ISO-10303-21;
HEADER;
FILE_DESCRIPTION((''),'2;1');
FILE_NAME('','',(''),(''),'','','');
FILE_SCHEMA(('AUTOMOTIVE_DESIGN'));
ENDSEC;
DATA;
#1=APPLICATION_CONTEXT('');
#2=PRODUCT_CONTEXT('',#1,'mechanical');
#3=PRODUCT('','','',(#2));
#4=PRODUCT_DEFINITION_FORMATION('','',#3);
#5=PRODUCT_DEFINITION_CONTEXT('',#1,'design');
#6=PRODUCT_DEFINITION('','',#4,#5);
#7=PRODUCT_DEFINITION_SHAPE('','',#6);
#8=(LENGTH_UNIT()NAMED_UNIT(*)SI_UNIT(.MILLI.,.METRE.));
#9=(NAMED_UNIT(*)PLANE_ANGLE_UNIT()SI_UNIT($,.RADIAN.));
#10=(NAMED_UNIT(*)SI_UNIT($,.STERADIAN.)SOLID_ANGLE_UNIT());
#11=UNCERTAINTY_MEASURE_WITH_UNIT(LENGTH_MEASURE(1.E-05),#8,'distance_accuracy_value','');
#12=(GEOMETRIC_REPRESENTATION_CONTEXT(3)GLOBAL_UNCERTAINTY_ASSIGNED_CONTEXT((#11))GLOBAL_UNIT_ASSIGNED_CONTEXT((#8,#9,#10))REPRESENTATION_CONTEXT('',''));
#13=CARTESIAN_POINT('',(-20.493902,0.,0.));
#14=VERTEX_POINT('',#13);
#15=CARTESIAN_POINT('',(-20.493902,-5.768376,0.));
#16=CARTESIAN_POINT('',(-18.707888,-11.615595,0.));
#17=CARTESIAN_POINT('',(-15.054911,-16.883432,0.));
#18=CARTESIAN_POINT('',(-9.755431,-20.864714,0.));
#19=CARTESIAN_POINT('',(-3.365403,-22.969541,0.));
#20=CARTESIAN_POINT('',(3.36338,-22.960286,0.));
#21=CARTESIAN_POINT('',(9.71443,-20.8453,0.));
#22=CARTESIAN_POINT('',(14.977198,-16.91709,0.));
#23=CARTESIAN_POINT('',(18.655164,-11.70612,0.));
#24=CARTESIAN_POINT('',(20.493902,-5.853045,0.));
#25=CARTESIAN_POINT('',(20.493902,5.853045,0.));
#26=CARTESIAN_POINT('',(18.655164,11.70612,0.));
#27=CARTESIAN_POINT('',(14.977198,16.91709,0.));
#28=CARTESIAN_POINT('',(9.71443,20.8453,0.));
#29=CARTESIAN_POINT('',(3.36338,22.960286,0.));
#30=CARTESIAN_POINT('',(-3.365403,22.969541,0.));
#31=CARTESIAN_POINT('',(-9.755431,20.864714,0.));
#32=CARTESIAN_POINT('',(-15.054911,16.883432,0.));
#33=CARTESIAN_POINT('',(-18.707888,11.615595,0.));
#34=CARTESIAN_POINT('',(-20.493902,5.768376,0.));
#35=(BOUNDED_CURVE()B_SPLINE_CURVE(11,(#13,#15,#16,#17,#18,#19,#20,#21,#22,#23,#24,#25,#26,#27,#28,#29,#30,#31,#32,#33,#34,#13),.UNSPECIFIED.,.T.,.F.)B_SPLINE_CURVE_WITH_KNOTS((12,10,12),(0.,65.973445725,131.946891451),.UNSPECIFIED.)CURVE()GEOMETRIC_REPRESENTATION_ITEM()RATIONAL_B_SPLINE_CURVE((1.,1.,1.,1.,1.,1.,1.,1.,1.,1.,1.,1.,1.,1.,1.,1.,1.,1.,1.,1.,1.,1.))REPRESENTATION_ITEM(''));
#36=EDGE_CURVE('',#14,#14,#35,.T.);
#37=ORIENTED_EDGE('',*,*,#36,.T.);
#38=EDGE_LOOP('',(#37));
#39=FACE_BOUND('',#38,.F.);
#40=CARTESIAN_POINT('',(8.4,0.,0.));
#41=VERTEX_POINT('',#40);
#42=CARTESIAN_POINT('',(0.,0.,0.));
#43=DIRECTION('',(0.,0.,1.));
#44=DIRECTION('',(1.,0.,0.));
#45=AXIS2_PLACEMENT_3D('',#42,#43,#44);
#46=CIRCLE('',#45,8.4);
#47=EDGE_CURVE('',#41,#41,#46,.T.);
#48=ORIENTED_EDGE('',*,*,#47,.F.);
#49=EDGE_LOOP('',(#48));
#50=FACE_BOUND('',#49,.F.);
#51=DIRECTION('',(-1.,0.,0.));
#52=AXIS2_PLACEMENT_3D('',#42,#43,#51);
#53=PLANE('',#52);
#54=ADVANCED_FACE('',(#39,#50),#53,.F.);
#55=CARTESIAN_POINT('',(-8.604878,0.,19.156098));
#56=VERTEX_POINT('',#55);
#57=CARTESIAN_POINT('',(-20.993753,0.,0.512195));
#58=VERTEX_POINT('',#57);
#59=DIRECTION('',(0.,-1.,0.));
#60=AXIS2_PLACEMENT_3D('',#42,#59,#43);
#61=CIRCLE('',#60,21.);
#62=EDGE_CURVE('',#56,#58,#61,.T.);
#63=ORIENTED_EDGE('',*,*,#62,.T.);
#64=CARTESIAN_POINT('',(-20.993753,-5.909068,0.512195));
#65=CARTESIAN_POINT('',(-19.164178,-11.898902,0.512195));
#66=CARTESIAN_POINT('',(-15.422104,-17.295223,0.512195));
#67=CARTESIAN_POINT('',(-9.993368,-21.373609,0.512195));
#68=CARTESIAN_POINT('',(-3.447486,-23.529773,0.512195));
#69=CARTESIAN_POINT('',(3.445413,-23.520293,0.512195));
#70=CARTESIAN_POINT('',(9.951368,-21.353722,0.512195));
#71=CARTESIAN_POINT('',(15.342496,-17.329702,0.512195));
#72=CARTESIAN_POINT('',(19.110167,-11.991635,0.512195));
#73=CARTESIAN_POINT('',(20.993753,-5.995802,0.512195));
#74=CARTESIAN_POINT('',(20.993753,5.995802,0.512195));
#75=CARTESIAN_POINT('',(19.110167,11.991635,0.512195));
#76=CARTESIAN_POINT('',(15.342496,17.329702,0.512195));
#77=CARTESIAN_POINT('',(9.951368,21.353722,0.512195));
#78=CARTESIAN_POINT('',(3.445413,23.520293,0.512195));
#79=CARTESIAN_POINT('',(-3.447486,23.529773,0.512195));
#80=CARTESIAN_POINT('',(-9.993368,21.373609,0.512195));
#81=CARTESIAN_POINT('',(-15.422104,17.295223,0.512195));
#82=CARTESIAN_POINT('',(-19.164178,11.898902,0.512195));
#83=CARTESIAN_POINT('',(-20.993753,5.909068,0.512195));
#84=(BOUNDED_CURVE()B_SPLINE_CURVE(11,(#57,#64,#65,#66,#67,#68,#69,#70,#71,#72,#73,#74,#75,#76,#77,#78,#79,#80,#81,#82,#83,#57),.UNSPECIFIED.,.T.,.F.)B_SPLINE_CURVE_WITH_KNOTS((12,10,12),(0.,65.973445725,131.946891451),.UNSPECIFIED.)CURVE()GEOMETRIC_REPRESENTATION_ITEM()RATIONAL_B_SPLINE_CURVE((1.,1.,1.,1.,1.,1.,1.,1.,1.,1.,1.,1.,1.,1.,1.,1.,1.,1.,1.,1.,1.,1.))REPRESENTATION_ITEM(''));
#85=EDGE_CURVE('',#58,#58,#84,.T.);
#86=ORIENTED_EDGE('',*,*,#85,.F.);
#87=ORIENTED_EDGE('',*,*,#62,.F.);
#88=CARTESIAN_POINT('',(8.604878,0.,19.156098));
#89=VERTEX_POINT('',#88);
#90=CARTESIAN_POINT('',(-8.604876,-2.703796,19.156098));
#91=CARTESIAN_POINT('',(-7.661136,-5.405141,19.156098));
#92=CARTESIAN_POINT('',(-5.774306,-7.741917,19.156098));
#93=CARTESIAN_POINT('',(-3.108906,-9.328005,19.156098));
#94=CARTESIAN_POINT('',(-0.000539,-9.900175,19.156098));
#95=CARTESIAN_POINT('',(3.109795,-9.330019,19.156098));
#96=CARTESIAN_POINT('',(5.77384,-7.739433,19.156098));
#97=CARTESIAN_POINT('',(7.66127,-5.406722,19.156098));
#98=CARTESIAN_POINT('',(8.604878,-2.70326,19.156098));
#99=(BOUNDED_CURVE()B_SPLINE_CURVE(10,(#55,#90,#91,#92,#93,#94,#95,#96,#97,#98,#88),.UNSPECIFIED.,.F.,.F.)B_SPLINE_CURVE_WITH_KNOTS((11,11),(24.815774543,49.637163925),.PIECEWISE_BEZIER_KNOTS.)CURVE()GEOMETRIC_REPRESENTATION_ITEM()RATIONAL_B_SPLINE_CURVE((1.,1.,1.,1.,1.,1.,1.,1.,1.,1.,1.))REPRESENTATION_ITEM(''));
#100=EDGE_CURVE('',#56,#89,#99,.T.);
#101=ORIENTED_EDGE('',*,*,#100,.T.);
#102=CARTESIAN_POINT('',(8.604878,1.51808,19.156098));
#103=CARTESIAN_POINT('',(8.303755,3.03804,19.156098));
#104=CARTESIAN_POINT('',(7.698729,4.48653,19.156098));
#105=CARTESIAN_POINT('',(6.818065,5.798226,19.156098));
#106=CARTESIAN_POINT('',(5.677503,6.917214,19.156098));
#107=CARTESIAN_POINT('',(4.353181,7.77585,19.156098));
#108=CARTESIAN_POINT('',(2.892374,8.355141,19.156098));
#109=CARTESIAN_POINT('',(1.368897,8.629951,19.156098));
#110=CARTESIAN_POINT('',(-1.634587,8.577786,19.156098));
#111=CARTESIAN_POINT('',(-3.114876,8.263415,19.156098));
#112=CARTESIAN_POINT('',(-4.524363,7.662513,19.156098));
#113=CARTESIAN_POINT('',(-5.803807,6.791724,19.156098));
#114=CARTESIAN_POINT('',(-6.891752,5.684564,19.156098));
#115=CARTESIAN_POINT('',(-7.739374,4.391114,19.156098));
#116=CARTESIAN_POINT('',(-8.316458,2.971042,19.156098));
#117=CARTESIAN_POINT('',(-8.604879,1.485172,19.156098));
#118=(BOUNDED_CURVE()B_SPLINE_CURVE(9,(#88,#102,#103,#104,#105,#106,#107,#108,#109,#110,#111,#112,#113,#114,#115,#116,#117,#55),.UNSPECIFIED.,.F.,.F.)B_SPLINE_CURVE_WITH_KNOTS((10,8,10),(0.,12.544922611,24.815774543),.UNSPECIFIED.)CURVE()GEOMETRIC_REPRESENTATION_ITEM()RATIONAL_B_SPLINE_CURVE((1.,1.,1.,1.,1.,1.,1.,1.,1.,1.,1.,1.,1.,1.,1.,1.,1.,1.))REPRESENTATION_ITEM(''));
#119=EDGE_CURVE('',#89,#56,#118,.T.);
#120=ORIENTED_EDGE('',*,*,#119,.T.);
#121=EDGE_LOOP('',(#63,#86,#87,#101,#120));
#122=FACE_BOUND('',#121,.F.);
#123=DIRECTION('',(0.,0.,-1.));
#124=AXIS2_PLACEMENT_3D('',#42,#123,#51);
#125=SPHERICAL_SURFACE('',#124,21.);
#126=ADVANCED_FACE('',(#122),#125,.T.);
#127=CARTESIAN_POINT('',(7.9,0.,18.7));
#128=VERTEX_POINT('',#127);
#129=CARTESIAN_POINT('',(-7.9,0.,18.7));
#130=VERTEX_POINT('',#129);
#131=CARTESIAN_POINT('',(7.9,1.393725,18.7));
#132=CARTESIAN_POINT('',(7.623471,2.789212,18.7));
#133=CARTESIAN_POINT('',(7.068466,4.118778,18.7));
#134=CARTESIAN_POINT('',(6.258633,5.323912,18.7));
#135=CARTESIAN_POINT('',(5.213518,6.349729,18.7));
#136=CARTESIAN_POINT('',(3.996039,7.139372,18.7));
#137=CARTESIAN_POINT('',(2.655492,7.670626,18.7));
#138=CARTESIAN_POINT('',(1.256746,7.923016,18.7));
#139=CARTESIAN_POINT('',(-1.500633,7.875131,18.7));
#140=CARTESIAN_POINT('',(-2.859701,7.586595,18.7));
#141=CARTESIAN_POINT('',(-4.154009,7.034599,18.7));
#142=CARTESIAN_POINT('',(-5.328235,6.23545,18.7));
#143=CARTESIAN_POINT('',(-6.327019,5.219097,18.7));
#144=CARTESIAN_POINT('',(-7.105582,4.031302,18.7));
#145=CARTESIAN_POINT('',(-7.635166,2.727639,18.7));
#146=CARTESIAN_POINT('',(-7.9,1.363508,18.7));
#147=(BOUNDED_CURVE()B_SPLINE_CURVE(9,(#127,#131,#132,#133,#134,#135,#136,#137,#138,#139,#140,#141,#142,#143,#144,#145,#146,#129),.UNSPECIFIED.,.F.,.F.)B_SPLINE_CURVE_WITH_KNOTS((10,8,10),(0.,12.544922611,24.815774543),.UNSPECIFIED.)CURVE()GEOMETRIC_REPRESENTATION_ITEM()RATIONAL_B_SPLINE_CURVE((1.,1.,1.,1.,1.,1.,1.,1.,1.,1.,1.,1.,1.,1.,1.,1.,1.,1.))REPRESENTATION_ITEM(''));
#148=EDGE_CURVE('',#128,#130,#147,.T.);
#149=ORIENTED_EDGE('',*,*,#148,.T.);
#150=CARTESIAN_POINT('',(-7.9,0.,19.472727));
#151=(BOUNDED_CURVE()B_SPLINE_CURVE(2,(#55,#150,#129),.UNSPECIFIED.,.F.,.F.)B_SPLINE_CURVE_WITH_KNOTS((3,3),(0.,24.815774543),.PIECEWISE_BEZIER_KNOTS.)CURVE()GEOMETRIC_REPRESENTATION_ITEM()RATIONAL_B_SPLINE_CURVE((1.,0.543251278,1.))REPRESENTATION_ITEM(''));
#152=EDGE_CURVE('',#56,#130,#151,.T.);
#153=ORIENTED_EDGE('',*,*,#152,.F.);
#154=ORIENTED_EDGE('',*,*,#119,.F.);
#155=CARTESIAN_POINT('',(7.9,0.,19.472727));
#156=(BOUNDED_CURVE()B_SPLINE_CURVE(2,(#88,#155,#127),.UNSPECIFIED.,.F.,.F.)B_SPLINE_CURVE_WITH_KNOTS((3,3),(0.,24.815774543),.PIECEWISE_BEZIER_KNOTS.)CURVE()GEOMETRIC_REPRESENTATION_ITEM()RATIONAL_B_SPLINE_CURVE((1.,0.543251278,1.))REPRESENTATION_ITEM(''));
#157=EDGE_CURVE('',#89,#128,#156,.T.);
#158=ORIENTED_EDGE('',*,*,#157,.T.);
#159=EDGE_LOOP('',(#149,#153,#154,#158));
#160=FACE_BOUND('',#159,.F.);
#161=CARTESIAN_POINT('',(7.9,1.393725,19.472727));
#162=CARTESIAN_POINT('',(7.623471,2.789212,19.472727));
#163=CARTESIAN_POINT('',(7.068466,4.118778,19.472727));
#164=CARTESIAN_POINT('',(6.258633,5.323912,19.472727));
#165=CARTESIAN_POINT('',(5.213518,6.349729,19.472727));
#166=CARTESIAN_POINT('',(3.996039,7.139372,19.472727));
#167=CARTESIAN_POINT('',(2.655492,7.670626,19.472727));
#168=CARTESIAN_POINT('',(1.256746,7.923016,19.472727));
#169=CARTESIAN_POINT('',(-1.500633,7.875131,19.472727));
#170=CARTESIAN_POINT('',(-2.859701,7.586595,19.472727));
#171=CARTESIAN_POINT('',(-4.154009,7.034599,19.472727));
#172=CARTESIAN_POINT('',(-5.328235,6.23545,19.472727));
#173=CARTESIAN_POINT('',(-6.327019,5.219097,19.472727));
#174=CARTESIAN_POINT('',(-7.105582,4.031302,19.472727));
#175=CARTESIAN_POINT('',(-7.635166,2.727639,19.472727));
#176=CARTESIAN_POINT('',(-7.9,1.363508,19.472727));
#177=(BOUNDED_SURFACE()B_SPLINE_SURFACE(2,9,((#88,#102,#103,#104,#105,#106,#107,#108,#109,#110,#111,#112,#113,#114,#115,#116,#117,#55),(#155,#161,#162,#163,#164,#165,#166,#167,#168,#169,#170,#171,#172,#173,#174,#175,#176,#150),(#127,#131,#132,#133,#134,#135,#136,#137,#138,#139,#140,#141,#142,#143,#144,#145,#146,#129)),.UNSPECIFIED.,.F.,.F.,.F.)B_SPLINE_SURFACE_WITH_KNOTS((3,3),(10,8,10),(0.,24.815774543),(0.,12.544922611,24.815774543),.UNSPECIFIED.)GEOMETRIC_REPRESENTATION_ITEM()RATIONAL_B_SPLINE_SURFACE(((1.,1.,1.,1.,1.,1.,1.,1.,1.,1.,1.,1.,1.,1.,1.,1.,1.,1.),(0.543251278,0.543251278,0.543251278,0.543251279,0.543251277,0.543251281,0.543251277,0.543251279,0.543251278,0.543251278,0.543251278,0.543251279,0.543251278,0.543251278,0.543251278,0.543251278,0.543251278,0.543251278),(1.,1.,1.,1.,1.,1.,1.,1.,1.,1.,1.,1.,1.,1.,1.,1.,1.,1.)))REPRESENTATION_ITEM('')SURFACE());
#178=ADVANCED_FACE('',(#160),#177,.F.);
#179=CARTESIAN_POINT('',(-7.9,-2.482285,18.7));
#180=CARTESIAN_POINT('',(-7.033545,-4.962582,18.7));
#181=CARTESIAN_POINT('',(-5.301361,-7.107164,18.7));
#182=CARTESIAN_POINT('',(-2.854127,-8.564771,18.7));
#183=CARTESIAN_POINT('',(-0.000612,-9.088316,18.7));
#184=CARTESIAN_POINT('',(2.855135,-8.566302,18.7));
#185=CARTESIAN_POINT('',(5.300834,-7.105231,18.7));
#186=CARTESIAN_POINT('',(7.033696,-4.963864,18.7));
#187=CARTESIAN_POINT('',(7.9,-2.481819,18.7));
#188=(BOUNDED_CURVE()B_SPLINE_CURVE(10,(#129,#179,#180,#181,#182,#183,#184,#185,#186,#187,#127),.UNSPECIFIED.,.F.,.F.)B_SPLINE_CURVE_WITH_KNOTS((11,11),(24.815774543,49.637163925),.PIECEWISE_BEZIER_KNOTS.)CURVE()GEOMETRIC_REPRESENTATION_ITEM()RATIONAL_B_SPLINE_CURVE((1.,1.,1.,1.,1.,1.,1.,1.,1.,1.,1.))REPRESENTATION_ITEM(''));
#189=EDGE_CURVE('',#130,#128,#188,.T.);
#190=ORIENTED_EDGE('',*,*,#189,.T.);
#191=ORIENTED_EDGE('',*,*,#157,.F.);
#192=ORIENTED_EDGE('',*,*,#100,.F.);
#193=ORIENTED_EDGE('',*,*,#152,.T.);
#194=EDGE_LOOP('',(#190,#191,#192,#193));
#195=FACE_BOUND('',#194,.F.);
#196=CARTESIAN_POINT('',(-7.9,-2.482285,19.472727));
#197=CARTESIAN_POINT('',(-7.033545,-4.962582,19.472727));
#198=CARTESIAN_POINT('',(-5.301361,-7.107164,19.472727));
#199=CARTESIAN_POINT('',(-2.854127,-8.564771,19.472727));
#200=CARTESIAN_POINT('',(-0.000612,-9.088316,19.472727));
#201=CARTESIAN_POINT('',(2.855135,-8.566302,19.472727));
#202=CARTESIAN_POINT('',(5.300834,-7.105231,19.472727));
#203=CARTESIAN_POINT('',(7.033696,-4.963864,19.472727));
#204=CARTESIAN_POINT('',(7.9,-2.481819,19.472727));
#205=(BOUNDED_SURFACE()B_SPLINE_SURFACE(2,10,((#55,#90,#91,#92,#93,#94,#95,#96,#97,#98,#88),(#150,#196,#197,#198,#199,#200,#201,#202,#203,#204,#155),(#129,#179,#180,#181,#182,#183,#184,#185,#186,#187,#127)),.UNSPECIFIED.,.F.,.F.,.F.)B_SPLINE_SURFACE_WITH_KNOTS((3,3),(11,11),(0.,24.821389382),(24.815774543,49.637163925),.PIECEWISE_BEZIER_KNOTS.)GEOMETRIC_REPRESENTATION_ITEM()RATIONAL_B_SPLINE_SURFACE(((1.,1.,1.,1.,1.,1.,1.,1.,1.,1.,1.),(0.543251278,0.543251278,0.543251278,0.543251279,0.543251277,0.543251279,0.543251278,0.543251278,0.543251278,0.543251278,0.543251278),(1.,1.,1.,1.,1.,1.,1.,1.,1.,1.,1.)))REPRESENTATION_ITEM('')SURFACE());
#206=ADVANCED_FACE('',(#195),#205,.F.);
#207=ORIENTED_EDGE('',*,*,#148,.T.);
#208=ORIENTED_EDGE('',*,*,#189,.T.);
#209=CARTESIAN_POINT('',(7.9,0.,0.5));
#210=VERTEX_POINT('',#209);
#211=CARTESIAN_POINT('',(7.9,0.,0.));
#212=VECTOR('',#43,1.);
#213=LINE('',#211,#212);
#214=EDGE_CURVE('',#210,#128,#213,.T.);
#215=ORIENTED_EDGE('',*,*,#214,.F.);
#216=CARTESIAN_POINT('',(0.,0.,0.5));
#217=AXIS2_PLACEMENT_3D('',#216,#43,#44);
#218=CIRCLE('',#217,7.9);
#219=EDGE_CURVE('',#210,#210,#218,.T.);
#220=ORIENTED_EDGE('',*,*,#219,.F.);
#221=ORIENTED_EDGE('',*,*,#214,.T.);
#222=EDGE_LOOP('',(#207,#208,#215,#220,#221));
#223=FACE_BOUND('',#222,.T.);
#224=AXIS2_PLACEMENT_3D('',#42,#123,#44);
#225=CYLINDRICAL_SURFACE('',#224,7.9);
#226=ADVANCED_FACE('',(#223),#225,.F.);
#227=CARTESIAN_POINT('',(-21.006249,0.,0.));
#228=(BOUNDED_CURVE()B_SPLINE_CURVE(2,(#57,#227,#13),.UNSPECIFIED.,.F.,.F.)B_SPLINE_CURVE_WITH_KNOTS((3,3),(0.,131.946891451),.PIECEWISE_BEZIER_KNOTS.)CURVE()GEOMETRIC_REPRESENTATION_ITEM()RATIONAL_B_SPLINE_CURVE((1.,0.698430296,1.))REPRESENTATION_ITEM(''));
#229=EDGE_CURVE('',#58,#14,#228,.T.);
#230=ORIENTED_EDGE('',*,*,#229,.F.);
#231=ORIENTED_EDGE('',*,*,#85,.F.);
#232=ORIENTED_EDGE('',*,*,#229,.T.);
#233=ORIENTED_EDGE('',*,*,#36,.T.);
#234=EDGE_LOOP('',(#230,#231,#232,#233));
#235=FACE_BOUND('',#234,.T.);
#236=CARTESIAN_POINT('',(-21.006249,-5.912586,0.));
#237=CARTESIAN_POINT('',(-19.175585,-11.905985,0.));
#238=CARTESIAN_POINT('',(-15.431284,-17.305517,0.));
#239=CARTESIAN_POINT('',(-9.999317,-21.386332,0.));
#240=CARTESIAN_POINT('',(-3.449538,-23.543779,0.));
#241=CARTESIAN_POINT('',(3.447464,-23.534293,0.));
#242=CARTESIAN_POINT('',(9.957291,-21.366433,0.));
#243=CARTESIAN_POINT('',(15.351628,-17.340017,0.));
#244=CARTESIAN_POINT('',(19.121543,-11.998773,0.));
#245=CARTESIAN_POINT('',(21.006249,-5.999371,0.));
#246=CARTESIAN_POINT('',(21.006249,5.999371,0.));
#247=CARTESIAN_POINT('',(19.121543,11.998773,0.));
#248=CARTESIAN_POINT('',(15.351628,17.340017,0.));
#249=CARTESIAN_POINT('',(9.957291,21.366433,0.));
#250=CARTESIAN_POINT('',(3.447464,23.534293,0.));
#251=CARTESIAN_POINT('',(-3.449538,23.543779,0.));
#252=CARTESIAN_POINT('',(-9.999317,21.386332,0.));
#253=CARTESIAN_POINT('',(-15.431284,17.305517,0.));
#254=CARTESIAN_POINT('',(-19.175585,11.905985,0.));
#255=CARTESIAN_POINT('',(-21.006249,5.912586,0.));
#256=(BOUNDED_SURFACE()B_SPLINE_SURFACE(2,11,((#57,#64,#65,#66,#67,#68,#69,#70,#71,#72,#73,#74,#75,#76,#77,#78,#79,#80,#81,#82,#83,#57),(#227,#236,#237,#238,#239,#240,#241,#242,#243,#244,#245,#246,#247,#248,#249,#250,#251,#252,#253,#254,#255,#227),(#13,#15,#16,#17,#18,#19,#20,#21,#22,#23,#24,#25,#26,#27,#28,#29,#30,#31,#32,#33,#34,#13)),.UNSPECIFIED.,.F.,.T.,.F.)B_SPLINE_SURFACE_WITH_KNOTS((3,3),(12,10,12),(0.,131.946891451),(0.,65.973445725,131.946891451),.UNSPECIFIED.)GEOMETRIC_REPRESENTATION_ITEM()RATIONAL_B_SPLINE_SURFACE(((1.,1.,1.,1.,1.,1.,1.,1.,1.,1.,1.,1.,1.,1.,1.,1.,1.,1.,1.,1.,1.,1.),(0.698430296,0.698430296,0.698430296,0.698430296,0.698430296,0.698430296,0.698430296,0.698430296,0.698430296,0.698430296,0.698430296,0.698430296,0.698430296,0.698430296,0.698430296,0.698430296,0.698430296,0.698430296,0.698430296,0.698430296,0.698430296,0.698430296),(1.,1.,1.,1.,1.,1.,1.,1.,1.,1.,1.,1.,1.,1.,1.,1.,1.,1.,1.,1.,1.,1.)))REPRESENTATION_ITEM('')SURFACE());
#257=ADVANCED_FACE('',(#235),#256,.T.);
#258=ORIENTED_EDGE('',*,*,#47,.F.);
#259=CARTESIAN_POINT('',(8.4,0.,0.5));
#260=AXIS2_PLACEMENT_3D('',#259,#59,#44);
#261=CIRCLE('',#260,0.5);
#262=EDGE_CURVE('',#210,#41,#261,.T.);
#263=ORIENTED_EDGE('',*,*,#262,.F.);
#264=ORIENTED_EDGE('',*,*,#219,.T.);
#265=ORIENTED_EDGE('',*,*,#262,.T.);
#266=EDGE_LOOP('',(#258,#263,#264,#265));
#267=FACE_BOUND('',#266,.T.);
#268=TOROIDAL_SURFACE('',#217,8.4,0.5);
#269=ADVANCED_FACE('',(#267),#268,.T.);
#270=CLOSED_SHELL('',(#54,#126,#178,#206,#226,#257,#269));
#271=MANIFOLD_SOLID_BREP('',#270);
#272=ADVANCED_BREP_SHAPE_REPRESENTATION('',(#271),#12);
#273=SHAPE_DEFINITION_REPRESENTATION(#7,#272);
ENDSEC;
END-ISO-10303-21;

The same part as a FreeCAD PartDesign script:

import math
import FreeCAD as App
import Part
import Sketcher
Q = App.Units.Quantity


def edges_at(feature, points):
    """Names of the edges that pass closest to the given points."""
    edges = feature.Shape.Edges
    near = lambda p: min(range(len(edges)), key=lambda i: edges[i].distToShape(Part.Vertex(*p))[0])
    return sorted({f"Edge{near(p) + 1}" for p in points})

doc = App.newDocument("Part")
body = doc.addObject("PartDesign::Body", "Body")

# Sketch on XZ plane
sketch1 = doc.addObject("Sketcher::SketchObject", "Sketch")
body.addObject(sketch1)
sketch1.AttachmentSupport = (doc.XZ_Plane, [""])
sketch1.MapMode = "FlatFace"
sketch1.addGeometry([
    Part.ArcOfCircle(Part.Circle(App.Vector(0, 0, 0), App.Vector(0, 0, 1), 21), math.radians(90), math.radians(180)),
    Part.LineSegment(App.Vector(-21, 0, 0), App.Vector(0, 0, 0)),
    Part.LineSegment(App.Vector(0, 0, 0), App.Vector(0, 21, 0)),
], False)
sketch1.addConstraint([
    Sketcher.Constraint("Coincident", 0, 2, 1, 1),
    Sketcher.Constraint("Coincident", 1, 2, 2, 1),
    Sketcher.Constraint("Coincident", 2, 2, 0, 1),
    Sketcher.Constraint("Horizontal", 1),
    Sketcher.Constraint("Vertical", 2),
    Sketcher.Constraint("Coincident", 0, 3, -1, 1),
    Sketcher.Constraint("Coincident", 1, 2, -1, 1),
    Sketcher.Constraint("Radius", 0, Q("21 mm")),
])
revolution = doc.addObject("PartDesign::Revolution", "Revolution")
body.addObject(revolution)
revolution.Profile = sketch1
revolution.ReferenceAxis = (sketch1, ["V_Axis"])
revolution.Angle = 360

# Sketch on XY plane
sketch2 = doc.addObject("Sketcher::SketchObject", "Sketch001")
body.addObject(sketch2)
sketch2.AttachmentSupport = (doc.XY_Plane, [""])
sketch2.MapMode = "FlatFace"
sketch2.addGeometry(Part.Circle(App.Vector(0, 0, 0), App.Vector(0, 0, 1), 8), False)
sketch2.addConstraint([
    Sketcher.Constraint("Coincident", 0, 3, -1, 1),
    Sketcher.Constraint("Diameter", 0, Q("15.8 mm")),
])
pocket1 = doc.addObject("PartDesign::Pocket", "Pocket")
body.addObject(pocket1)
pocket1.Profile = sketch2
pocket1.Type = "ThroughAll"
pocket1.Reversed = True
doc.recompute()

fillet = doc.addObject("PartDesign::Fillet", "Fillet")
body.addObject(fillet)
fillet.Base = (pocket1, edges_at(pocket1, [
    (21, 0, 0),
    (-7.9, 0, 0),
    (0, 7.9, 19.457),
    (0, -7.9, 19.457),
]))
fillet.Radius = 0.5

doc.recompute()
